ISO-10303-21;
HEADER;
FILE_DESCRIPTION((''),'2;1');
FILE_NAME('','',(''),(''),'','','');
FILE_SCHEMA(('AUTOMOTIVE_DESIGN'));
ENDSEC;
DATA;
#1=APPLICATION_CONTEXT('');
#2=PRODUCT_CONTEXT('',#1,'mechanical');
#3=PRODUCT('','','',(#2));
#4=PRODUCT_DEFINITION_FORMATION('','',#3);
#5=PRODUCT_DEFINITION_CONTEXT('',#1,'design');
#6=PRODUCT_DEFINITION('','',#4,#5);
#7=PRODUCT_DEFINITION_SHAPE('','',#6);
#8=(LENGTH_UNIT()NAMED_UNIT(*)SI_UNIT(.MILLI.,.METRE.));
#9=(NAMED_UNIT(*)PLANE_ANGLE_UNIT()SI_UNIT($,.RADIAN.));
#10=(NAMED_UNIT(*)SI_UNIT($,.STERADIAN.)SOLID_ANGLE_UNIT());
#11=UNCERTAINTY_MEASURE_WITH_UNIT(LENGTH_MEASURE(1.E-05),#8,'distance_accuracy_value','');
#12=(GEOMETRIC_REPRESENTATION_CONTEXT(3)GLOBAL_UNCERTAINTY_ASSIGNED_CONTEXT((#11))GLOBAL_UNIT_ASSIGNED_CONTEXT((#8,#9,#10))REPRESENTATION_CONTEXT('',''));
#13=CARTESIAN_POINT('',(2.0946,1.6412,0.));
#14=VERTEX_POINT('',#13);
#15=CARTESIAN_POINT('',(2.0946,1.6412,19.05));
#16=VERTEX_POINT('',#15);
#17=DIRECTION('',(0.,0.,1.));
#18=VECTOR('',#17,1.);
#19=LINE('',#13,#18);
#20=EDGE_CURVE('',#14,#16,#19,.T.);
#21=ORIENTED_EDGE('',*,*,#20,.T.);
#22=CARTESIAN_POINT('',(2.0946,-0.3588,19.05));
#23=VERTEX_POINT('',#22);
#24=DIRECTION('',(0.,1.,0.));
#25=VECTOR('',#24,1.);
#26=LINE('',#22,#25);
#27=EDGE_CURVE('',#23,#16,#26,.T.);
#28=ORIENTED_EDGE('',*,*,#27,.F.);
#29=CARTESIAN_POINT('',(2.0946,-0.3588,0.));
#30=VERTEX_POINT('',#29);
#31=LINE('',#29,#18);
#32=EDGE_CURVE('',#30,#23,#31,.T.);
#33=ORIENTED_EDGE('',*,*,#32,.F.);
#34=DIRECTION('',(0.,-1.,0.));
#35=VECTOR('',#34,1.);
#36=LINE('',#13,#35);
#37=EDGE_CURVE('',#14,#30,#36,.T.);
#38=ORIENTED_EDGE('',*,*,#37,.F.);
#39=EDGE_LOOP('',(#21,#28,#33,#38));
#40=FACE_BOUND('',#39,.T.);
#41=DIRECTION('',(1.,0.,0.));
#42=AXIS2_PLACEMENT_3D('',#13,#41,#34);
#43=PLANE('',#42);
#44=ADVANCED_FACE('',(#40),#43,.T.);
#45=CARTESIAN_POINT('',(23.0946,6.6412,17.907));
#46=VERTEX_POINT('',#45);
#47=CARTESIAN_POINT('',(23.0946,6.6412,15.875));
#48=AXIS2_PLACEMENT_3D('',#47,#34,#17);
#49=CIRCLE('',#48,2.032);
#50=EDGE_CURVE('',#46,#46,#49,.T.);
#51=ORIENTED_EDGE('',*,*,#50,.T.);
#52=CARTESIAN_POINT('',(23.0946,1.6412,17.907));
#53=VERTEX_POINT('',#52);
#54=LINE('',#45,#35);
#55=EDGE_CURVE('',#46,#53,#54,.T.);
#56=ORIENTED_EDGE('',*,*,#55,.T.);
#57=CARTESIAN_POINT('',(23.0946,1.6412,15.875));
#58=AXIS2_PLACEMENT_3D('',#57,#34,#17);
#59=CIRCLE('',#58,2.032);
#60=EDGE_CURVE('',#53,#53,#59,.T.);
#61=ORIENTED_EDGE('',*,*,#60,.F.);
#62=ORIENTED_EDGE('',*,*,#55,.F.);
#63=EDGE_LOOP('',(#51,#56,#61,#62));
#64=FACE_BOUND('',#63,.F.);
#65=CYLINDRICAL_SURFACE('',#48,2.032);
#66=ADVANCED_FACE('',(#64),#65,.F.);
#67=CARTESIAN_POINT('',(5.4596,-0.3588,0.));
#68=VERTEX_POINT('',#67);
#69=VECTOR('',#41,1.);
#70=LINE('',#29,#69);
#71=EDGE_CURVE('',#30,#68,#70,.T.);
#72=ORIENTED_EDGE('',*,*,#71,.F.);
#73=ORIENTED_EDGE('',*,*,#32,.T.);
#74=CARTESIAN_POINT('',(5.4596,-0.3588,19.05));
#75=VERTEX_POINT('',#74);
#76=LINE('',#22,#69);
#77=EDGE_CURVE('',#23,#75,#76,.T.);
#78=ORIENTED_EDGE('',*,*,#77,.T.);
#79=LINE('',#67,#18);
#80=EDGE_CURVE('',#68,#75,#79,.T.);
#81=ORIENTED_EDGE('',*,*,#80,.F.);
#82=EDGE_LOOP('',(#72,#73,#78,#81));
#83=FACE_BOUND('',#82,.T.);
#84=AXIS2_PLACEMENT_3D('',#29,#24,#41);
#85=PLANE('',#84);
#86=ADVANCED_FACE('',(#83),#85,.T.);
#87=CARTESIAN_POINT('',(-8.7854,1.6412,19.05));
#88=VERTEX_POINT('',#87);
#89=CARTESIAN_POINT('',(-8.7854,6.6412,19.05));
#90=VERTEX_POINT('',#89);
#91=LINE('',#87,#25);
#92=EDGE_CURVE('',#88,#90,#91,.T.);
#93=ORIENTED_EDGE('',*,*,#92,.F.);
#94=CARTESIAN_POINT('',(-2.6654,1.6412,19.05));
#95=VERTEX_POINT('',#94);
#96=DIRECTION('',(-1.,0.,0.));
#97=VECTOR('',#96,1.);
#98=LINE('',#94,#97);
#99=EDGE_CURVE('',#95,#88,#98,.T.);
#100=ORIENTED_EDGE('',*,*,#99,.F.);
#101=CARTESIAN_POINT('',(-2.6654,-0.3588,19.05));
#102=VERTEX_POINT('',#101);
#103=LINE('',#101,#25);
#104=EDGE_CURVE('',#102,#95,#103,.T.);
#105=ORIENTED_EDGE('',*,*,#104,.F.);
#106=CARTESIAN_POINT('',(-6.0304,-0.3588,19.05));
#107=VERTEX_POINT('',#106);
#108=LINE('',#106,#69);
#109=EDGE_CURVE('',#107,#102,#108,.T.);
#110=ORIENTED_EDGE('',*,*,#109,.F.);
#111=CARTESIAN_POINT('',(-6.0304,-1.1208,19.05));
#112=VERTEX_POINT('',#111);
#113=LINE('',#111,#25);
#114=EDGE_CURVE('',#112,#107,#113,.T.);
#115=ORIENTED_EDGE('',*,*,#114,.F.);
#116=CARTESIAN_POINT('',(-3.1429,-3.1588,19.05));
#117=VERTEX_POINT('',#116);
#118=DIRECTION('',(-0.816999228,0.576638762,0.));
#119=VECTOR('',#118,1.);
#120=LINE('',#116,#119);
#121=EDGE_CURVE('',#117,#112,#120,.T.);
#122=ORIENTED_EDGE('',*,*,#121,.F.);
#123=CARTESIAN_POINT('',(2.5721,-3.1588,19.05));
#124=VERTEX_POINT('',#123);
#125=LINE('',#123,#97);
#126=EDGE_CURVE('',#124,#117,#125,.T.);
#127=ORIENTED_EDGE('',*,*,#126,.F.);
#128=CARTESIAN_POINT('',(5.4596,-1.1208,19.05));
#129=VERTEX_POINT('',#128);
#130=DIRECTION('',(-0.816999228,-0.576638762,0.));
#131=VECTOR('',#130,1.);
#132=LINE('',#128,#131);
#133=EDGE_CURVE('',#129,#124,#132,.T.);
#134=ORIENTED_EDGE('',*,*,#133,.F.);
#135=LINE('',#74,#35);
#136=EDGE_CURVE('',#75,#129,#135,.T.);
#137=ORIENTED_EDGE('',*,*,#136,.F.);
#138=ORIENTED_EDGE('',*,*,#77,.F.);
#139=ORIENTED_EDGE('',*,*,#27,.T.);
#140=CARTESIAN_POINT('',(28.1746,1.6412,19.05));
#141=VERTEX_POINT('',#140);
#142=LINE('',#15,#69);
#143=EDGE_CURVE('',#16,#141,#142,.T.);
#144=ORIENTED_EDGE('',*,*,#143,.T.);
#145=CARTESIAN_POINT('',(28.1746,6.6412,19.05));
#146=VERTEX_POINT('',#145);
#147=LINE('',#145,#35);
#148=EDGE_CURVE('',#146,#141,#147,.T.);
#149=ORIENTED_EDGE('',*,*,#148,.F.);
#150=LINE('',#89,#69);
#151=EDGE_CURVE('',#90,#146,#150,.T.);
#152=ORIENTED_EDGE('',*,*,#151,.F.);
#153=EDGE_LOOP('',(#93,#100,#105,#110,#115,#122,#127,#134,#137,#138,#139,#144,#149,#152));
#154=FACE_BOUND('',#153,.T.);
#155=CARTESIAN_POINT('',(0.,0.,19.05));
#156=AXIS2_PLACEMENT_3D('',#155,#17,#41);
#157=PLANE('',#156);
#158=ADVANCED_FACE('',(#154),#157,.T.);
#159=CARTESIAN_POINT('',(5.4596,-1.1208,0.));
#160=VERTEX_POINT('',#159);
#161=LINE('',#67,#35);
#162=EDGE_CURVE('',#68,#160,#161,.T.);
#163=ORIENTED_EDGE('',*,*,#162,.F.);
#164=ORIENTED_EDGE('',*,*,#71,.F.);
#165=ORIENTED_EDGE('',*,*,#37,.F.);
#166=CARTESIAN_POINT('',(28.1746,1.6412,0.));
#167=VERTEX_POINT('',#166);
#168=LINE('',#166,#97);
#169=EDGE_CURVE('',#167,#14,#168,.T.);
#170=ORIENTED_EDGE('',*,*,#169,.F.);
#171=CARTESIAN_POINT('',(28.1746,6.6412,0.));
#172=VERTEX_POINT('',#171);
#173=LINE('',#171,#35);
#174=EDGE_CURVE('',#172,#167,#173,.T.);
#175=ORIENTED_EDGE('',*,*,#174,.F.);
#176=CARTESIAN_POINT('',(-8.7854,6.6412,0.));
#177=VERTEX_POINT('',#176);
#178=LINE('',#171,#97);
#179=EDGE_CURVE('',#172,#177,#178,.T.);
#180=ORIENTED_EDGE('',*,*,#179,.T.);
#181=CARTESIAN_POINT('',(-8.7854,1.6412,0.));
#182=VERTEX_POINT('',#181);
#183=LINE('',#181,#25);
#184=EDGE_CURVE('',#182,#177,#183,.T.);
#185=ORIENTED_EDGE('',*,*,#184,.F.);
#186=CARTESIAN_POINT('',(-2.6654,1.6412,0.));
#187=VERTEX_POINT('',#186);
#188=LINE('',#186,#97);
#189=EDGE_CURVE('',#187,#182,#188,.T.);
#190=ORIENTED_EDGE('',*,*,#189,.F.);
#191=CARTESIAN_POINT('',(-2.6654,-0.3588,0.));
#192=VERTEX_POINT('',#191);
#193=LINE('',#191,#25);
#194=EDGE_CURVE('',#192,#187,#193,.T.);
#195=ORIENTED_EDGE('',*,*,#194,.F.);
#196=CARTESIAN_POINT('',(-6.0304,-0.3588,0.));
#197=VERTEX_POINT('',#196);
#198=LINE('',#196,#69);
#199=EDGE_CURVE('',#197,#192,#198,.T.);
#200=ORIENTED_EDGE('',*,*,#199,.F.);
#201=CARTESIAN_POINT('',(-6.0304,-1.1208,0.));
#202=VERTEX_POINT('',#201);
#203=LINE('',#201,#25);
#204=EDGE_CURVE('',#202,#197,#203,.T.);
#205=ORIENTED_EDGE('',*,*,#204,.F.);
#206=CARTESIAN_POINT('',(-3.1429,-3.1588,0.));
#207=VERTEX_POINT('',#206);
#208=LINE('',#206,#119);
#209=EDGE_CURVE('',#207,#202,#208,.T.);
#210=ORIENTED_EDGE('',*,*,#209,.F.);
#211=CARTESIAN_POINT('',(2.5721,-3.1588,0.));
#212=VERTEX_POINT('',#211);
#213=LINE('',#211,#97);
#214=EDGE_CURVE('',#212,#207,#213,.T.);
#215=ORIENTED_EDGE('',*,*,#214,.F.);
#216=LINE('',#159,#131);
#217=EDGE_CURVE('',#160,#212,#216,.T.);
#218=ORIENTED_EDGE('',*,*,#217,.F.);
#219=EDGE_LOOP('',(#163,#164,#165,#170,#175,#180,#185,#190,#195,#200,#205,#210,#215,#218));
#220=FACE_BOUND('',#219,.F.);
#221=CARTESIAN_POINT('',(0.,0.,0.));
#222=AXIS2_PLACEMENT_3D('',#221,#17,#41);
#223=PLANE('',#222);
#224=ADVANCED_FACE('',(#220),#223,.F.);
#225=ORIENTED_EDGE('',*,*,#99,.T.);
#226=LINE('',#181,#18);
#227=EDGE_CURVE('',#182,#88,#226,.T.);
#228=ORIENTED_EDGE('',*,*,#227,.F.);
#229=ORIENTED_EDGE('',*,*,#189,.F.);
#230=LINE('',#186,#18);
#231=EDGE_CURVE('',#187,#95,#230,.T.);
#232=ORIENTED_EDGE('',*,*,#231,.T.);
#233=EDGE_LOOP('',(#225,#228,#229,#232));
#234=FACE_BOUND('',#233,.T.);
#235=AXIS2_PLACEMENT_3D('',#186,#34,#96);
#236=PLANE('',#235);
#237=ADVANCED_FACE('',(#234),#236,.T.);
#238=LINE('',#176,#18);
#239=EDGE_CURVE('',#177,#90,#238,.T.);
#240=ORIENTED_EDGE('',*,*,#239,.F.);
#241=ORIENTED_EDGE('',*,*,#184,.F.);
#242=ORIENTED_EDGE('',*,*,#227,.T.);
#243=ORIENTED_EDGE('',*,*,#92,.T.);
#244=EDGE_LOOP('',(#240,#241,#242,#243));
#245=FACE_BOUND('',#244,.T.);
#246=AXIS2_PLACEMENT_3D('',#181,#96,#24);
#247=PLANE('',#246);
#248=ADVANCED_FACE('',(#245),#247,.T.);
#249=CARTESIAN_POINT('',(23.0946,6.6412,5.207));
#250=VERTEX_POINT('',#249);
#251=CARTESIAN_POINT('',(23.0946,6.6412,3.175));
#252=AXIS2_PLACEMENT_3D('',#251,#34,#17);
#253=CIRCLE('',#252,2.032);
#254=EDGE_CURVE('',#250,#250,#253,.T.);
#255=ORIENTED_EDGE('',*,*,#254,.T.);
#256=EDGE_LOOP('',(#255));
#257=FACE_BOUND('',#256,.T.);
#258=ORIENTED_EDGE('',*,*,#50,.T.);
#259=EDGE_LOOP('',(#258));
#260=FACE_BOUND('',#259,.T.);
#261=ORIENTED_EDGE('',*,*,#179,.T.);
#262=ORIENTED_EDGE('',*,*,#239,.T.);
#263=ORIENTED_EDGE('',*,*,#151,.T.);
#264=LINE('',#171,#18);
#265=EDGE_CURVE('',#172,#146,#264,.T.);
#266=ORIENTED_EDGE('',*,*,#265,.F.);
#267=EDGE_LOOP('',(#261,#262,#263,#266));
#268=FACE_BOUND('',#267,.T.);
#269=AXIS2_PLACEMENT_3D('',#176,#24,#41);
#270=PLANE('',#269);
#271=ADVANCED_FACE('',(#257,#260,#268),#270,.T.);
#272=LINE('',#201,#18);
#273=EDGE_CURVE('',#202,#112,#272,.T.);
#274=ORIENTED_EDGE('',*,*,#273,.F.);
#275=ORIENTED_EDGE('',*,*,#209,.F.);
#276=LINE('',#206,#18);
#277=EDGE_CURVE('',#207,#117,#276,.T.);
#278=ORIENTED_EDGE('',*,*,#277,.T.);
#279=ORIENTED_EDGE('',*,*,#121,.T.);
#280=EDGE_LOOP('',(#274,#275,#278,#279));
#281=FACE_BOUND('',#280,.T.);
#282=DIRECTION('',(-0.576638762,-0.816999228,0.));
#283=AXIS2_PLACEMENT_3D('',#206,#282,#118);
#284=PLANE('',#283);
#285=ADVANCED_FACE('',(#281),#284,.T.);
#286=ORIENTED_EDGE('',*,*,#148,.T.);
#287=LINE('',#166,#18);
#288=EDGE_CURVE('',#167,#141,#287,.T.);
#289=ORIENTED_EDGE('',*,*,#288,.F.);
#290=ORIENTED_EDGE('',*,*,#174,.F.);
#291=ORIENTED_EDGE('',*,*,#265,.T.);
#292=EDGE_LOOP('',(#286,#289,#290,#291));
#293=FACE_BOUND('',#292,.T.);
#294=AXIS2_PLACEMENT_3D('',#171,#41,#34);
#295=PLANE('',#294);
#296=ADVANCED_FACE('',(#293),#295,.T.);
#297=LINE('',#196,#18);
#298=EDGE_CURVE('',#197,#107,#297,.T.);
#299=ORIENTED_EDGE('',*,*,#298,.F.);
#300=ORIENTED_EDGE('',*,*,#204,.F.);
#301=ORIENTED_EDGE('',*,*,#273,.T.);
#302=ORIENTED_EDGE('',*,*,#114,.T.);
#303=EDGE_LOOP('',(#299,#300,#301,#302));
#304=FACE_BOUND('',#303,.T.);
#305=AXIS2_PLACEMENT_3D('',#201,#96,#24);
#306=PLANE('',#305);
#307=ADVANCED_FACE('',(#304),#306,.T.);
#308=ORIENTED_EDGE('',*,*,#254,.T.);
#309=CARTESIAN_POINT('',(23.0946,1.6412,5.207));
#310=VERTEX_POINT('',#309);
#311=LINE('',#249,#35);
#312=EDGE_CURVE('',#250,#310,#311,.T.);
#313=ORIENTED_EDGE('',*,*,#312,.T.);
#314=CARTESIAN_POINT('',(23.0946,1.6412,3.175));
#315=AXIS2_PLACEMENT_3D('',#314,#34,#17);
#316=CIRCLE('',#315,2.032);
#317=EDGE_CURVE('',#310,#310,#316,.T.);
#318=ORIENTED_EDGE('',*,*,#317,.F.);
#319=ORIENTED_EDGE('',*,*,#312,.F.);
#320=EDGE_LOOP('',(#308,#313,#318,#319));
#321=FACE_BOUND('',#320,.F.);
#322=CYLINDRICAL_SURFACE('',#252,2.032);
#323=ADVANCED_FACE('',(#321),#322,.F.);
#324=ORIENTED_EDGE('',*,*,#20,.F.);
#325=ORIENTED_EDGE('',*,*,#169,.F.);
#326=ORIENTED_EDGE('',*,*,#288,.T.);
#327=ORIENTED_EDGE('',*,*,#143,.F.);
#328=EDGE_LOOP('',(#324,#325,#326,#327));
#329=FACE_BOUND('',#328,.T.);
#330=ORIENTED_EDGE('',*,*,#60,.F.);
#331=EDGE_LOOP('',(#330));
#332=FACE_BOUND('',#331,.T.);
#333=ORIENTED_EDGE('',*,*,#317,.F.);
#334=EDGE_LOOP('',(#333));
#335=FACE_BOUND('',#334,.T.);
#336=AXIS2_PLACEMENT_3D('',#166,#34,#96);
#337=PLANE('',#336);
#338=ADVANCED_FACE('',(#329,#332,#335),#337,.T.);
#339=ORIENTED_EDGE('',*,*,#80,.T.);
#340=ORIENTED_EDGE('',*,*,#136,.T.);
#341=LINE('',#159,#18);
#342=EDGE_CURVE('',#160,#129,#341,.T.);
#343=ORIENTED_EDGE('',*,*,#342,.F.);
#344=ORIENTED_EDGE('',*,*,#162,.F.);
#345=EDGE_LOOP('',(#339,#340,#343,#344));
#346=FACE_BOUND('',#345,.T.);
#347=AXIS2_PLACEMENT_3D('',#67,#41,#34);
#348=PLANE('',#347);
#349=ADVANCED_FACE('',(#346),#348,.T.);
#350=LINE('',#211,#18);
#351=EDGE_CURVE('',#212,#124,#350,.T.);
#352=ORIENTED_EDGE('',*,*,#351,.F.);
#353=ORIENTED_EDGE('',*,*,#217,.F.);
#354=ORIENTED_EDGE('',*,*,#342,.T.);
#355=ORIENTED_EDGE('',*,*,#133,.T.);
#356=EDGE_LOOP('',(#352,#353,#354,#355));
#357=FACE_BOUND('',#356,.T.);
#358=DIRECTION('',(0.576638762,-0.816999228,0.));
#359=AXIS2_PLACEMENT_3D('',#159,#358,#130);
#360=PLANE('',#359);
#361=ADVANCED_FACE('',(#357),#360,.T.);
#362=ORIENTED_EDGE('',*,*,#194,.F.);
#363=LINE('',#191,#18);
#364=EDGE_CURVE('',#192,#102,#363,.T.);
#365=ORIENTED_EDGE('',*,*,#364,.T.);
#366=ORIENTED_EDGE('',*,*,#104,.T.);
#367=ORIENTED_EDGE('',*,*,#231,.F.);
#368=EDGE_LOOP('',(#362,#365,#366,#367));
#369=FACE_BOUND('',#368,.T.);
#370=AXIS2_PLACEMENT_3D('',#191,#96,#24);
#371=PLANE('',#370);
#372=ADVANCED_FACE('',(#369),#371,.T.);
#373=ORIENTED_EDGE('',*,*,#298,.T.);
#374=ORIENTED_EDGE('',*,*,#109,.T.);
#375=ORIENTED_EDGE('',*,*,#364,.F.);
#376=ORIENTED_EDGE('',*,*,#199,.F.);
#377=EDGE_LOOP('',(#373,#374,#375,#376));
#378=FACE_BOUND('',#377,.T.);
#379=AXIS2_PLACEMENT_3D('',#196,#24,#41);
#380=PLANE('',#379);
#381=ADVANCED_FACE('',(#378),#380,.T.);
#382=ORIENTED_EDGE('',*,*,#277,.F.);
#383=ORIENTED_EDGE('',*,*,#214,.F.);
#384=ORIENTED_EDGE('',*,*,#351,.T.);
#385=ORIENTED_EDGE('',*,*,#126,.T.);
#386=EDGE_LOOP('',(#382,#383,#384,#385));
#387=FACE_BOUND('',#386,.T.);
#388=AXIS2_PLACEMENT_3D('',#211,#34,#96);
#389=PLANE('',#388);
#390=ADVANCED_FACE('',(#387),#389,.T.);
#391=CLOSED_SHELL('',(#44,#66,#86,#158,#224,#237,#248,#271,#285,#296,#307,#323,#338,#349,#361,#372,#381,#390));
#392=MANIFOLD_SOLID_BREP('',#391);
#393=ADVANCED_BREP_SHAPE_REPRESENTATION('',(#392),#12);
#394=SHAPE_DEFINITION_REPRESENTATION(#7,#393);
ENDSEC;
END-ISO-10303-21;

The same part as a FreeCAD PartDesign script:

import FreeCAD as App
import Part
import Sketcher
Q = App.Units.Quantity


def add_polygon(sketch, points):
    """Adds a closed chain of lines whose ends are joined by coincident constraints."""
    first, n = sketch.GeometryCount, len(points)
    for a, b in zip(points, points[1:] + points[:1]):
        sketch.addGeometry(Part.LineSegment(App.Vector(*a, 0), App.Vector(*b, 0)), False)
    for i in range(n):
        sketch.addConstraint(Sketcher.Constraint("Coincident", first + i, 2, first + (i + 1) % n, 1))

doc = App.newDocument("Part")
body = doc.addObject("PartDesign::Body", "Body")

sketch1 = body.newObject("Sketcher::SketchObject", "Sketch")
sketch1.AttachmentSupport = (doc.getObject("XY_Plane"), [""])
sketch1.MapMode = "FlatFace"
add_polygon(sketch1, [(28.1746, 6.6412), (-8.7854, 6.6412), (-8.7854, 1.6412), (-2.6654, 1.6412), (-2.6654, -0.3588), (-6.0304, -0.3588), (-6.0304, -1.1208), (-3.1429, -3.1588), (2.5721, -3.1588), (5.4596, -1.1208), (5.4596, -0.3588), (2.0946, -0.3588), (2.0946, 1.6412), (28.1746, 1.6412)])
sketch1.addConstraint([
    Sketcher.Constraint("Horizontal", 0),
    Sketcher.Constraint("Vertical", 1),
    Sketcher.Constraint("Horizontal", 2),
    Sketcher.Constraint("Vertical", 3),
    Sketcher.Constraint("Horizontal", 4),
    Sketcher.Constraint("Vertical", 5),
    Sketcher.Constraint("Horizontal", 7),
    Sketcher.Constraint("Vertical", 9),
    Sketcher.Constraint("Horizontal", 10),
    Sketcher.Constraint("Vertical", 11),
    Sketcher.Constraint("Horizontal", 12),
    Sketcher.Constraint("Vertical", 13),
    Sketcher.Constraint("Horizontal", 5, 2, 8, 2),
    Sketcher.Constraint("Horizontal", 4, 2, 9, 2),
    Sketcher.Constraint("Horizontal", 2, 2, 11, 2),
    Sketcher.Constraint("Equal", 4, 10),
    Sketcher.Constraint("Equal", 6, 8),
    Sketcher.Constraint("DistanceY", 5, 2, 5, 1, Q("0.03 in")),
    Sketcher.Constraint("DistanceX", 7, 1, 7, 2, Q("0.225 in")),
    Sketcher.Constraint("DistanceX", 2, 1, 2, 2, 6.12),
    Sketcher.Constraint("DistanceX", 12, 1, 12, 2, 26.08),
    Sketcher.Constraint("DistanceY", 1, 2, 1, 1, 5.0),
    Sketcher.Constraint("DistanceY", 3, 2, 3, 1, 2.0),
    Sketcher.Constraint("DistanceX", 3, 2, 10, 2, Q("0.1874 in")),
    Sketcher.Constraint("DistanceX", 1, 2, 4, 2, 2.755),
    Sketcher.Constraint("Distance", 6, 3.5343),
    Sketcher.Constraint("DistanceX", 0, 2, -1, 1, 8.7854),
    Sketcher.Constraint("DistanceY", -1, 1, 0, 2, 6.6412),
])
pad1 = body.newObject("PartDesign::Pad", "Pad")
pad1.Profile = sketch1
pad1.Length = Q("0.75 in")

sketch2 = body.newObject("Sketcher::SketchObject", "Sketch001")
sketch2.AttachmentSupport = (doc.getObject("XZ_Plane"), [""])
sketch2.MapMode = "FlatFace"
sketch2.AttachmentOffset = App.Placement(App.Vector(0, 0, -6.6412), App.Rotation())
sketch2.addGeometry([
    Part.Circle(App.Vector(23.0946, 15.875, 0), App.Vector(0, 0, 1), 2.032),
    Part.Circle(App.Vector(23.0946, 3.175, 0), App.Vector(0, 0, 1), 2.032),
], False)
sketch2.addConstraint([
    Sketcher.Constraint("Equal", 0, 1),
    Sketcher.Constraint("Vertical", 0, 3, 1, 3),
    Sketcher.Constraint("Diameter", 0, Q("0.16 in")),
    Sketcher.Constraint("DistanceY", 1, 3, 0, 3, Q("0.5 in")),
    Sketcher.Constraint("DistanceY", -1, 1, 0, 3, Q("0.625 in")),
    Sketcher.Constraint("DistanceX", -1, 1, 0, 3, 23.0946),
])
doc.recompute()
hole = body.newObject("PartDesign::Hole", "Hole")
hole.Profile = sketch2
hole.ThreadType = "None"
hole.Diameter = Q("0.16 in")
hole.DepthType = "Dimension"
hole.Depth = Q("1 in")
hole.DrillPoint = "Angled"
hole.DrillPointAngle = 118
hole.Reversed = True

doc.recompute()
